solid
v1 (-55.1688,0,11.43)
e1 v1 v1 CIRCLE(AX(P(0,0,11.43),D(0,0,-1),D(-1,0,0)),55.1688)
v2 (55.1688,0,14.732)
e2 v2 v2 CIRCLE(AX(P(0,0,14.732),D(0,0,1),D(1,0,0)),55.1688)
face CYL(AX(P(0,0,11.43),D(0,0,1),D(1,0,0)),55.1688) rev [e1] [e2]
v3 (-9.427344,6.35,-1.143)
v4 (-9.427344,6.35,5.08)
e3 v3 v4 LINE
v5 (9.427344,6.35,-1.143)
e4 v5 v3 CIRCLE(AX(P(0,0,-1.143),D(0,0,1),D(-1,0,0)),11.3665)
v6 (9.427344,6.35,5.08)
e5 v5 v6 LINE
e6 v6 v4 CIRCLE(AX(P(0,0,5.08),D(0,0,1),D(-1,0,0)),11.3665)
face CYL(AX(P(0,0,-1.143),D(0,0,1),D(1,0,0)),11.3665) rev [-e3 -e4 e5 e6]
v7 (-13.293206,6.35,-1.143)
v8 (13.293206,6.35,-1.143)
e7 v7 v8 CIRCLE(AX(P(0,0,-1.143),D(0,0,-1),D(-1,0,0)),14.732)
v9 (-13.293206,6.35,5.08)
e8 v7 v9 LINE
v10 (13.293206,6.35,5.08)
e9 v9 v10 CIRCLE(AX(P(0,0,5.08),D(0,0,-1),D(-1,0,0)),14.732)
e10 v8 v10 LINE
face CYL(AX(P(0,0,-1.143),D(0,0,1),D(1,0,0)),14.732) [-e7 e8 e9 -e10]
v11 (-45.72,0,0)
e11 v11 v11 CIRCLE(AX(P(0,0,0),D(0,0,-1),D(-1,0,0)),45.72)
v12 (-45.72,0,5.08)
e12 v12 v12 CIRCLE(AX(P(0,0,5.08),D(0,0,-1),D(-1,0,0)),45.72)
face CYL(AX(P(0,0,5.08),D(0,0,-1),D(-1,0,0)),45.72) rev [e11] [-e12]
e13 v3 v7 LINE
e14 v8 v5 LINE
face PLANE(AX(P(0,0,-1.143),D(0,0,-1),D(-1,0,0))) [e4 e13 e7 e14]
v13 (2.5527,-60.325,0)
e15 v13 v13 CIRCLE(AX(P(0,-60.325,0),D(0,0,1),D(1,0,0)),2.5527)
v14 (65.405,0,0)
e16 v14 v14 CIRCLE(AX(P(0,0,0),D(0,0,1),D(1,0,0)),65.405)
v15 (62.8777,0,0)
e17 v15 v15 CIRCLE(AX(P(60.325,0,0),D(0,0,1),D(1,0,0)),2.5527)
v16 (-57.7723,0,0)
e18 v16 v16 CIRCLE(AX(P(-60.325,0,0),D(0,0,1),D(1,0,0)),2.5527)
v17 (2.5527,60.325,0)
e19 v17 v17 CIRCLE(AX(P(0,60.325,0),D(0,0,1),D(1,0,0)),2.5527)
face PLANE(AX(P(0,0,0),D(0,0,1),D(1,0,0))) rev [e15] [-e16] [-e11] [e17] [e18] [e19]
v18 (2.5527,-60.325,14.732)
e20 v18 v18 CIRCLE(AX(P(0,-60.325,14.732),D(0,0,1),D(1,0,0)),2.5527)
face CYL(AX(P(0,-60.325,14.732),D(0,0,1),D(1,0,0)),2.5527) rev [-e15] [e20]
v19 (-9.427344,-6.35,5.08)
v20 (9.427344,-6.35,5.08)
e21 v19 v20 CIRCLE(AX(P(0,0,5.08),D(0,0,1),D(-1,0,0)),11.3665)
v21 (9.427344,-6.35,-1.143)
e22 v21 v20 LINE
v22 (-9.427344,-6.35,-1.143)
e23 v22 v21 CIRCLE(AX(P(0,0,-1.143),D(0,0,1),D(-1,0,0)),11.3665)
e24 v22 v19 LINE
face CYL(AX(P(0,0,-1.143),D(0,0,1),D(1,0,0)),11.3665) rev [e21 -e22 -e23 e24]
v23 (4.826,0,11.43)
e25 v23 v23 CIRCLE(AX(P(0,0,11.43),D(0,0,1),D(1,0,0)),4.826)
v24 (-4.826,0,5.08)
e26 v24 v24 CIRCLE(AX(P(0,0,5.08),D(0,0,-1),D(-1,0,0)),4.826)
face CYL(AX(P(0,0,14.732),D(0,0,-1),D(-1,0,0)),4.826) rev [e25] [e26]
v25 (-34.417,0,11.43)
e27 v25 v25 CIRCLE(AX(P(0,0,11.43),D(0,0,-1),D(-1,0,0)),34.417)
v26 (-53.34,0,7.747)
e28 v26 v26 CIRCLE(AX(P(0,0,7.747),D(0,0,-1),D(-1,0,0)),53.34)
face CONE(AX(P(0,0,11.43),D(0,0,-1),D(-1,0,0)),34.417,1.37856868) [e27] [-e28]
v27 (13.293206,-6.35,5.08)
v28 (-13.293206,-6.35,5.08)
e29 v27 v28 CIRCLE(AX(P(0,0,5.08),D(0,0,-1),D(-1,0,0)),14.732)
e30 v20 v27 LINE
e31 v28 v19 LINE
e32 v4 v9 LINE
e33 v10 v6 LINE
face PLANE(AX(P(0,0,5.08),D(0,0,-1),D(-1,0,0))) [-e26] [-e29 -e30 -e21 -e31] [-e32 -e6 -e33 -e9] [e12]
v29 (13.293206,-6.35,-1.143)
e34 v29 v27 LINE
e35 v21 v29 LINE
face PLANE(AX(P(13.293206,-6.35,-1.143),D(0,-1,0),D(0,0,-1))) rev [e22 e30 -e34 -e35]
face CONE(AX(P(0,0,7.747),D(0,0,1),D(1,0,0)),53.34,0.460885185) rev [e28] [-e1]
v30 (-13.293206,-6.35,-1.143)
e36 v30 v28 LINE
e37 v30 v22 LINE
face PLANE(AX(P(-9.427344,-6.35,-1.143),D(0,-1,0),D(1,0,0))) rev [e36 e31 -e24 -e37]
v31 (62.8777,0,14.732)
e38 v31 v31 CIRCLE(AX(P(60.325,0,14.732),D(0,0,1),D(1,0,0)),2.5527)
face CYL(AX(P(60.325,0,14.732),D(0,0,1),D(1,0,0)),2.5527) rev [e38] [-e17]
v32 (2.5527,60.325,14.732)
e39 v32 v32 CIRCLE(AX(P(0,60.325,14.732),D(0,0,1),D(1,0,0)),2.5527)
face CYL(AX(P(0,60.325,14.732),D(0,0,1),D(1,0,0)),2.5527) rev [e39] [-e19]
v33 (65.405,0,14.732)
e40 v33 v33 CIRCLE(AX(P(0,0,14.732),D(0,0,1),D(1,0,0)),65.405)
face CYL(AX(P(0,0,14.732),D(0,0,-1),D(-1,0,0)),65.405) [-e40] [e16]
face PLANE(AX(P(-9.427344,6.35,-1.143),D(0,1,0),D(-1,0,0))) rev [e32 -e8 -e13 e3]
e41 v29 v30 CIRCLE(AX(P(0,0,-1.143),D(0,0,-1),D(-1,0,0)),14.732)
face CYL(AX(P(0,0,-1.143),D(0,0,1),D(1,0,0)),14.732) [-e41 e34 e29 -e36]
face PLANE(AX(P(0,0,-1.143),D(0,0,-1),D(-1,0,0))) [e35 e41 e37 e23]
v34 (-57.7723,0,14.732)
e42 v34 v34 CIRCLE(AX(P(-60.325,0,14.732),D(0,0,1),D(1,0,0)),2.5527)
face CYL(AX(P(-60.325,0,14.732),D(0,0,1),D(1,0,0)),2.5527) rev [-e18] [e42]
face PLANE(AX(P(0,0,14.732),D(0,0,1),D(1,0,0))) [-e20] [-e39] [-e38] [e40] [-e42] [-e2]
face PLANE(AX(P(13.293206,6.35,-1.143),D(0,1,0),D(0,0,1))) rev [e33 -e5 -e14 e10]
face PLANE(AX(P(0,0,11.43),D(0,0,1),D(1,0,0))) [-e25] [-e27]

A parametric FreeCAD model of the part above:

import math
import FreeCAD as App
import Part
import Sketcher

V = App.Vector
Q = App.Units.Quantity

doc = App.newDocument("Part")
body = doc.addObject("PartDesign::Body", "Body")

sketch1 = doc.addObject("Sketcher::SketchObject", "Sketch")
body.addObject(sketch1)
sketch1.AttachmentSupport = (doc.XY_Plane, [""])
sketch1.MapMode = "FlatFace"
sketch1.addGeometry(Part.Circle(V(0, 0, 0), V(0, 0, 1), 65), False)
sketch1.addConstraint([
    Sketcher.Constraint("Coincident", 0, 3, -1, 1),
    Sketcher.Constraint("Diameter", 0, Q("5.15 in")),
])
pad1 = doc.addObject("PartDesign::Pad", "Pad")
body.addObject(pad1)
pad1.Profile = sketch1
pad1.Length = Q("0.58 in")

sketch2 = doc.addObject("Sketcher::SketchObject", "Sketch001")
body.addObject(sketch2)
sketch2.AttachmentSupport = (doc.XY_Plane, [""])
sketch2.MapMode = "FlatFace"
sketch2.AttachmentOffset = App.Placement(V(0, 0, 0.58 * 25.4), App.Rotation())
sketch2.addGeometry(Part.Circle(V(0, 0, 0), V(0, 0, 1), 55), False)
sketch2.addConstraint([
    Sketcher.Constraint("Coincident", 0, 3, -1, 1),
    Sketcher.Constraint("Diameter", 0, Q("4.344 in")),
])
pocket1 = doc.addObject("PartDesign::Pocket", "Pocket")
body.addObject(pocket1)
pocket1.Profile = sketch2
pocket1.Length = Q("0.13 in")

sketch3 = doc.addObject("Sketcher::SketchObject", "Sketch002")
body.addObject(sketch3)
sketch3.AttachmentSupport = (doc.YZ_Plane, [""])
sketch3.MapMode = "FlatFace"
sketch3.addGeometry([
    Part.LineSegment(V(34.4, 11.4, 0), V(53.3, 7.7, 0)),
    Part.LineSegment(V(53.3, 7.7, 0), V(55.2, 11.4, 0)),
    Part.LineSegment(V(55.2, 11.4, 0), V(34.4, 11.4, 0)),
], False)
sketch3.addConstraint([
    Sketcher.Constraint("Coincident", 0, 2, 1, 1),
    Sketcher.Constraint("Coincident", 1, 2, 2, 1),
    Sketcher.Constraint("Coincident", 2, 2, 0, 1),
    Sketcher.Constraint("Horizontal", 2),
    Sketcher.Constraint("DistanceX", -1, 1, 0, 2, Q("2.1 in")),
    Sketcher.Constraint("DistanceX", 2, 2, 2, 1, Q("0.817 in")),
    Sketcher.Constraint("DistanceY", -1, 1, 1, 2, Q("0.45 in")),
    Sketcher.Constraint("DistanceY", -1, 1, 0, 2, Q("0.305 in")),
    Sketcher.Constraint("DistanceX", -1, 1, 1, 2, Q("2.172 in")),
])
groove = doc.addObject("PartDesign::Groove", "Groove")
body.addObject(groove)
groove.Profile = sketch3
groove.ReferenceAxis = (sketch3, ["V_Axis"])
groove.Angle = 360

sketch4 = doc.addObject("Sketcher::SketchObject", "Sketch003")
body.addObject(sketch4)
sketch4.AttachmentSupport = (doc.XY_Plane, [""])
sketch4.MapMode = "FlatFace"
sketch4.AttachmentOffset = App.Placement(V(0, 0, 0.58 * 25.4), App.Rotation())
sketch4.addGeometry([
    Part.Circle(V(0, 60.3, 0), V(0, 0, 1), 2.6),
    Part.Circle(V(60.3, 0, 0), V(0, 0, 1), 2.6),
    Part.Circle(V(0, -60.3, 0), V(0, 0, 1), 2.6),
    Part.Circle(V(-60.3, 0, 0), V(0, 0, 1), 2.6),
], False)
sketch4.addConstraint([
    Sketcher.Constraint("Equal", 0, 1),
    Sketcher.Constraint("Equal", 1, 2),
    Sketcher.Constraint("Equal", 2, 3),
    Sketcher.Constraint("Symmetric", 0, 3, 2, 3, -1, 1),
    Sketcher.Constraint("Symmetric", 1, 3, 3, 3, -1, 1),
    Sketcher.Constraint("PointOnObject", 0, 3, -2),
    Sketcher.Constraint("PointOnObject", 1, 3, -1),
    Sketcher.Constraint("Diameter", 0, Q("0.201 in")),
    Sketcher.Constraint("DistanceY", 2, 3, 0, 3, Q("4.75 in")),
    Sketcher.Constraint("DistanceX", 3, 3, 1, 3, Q("4.75 in")),
])
doc.recompute()
hole = doc.addObject("PartDesign::Hole", "Hole")
body.addObject(hole)
hole.Profile = sketch4
hole.ThreadType = "None"
hole.Diameter = Q("0.201 in")
hole.DepthType = "ThroughAll"

sketch5 = doc.addObject("Sketcher::SketchObject", "Sketch004")
body.addObject(sketch5)
sketch5.AttachmentSupport = (doc.XY_Plane, [""])
sketch5.MapMode = "FlatFace"
sketch5.addGeometry(Part.Circle(V(0, 0, 0), V(0, 0, 1), 46), False)
sketch5.addConstraint([
    Sketcher.Constraint("Coincident", 0, 3, -1, 1),
    Sketcher.Constraint("Diameter", 0, Q("3.6 in")),
])
pocket2 = doc.addObject("PartDesign::Pocket", "Pocket001")
body.addObject(pocket2)
pocket2.Profile = sketch5
pocket2.Length = Q("0.2 in")
pocket2.Reversed = True

sketch6 = doc.addObject("Sketcher::SketchObject", "Sketch005")
body.addObject(sketch6)
sketch6.AttachmentSupport = (doc.XY_Plane, [""])
sketch6.MapMode = "FlatFace"
sketch6.AttachmentOffset = App.Placement(V(0, 0, 0.2 * 25.4), App.Rotation())
sketch6.addGeometry(Part.Circle(V(0, 0, 0), V(0, 0, 1), 4.8), False)
sketch6.addConstraint([
    Sketcher.Constraint("Coincident", 0, 3, -1, 1),
    Sketcher.Constraint("Diameter", 0, Q("0.38 in")),
])
pocket3 = doc.addObject("PartDesign::Pocket", "Pocket002")
body.addObject(pocket3)
pocket3.Profile = sketch6
pocket3.Type = "ThroughAll"
pocket3.Reversed = True

sketch7 = doc.addObject("Sketcher::SketchObject", "Sketch006")
body.addObject(sketch7)
sketch7.AttachmentSupport = (doc.XY_Plane, [""])
sketch7.MapMode = "FlatFace"
sketch7.AttachmentOffset = App.Placement(V(0, 0, 0.2 * 25.4), App.Rotation())
sketch7.addGeometry([
    Part.LineSegment(V(9.4, -6.3, 0), V(13.3, -6.3, 0)),
    Part.ArcOfCircle(Part.Circle(V(0, 0, 0), V(0, 0, 1), 14.7), math.radians(-154), math.radians(-26)),
    Part.LineSegment(V(-13.3, -6.3, 0), V(-9.4, -6.3, 0)),
    Part.ArcOfCircle(Part.Circle(V(0, 0, 0), V(0, 0, 1), 11.4), math.radians(-146), math.radians(-34)),
    Part.LineSegment(V(13.3, 6.3, 0), V(9.4, 6.3, 0)),
    Part.ArcOfCircle(Part.Circle(V(0, 0, 0), V(0, 0, 1), 11.4), math.radians(34), math.radians(146)),
    Part.LineSegment(V(-9.4, 6.3, 0), V(-13.3, 6.3, 0)),
    Part.ArcOfCircle(Part.Circle(V(0, 0, 0), V(0, 0, 1), 14.7), math.radians(26), math.radians(154)),
], False)
sketch7.addConstraint([
    Sketcher.Constraint("Coincident", 0, 2, 1, 2),
    Sketcher.Constraint("Coincident", 1, 1, 2, 1),
    Sketcher.Constraint("Coincident", 2, 2, 3, 1),
    Sketcher.Constraint("Coincident", 3, 2, 0, 1),
    Sketcher.Constraint("Coincident", 4, 2, 5, 1),
    Sketcher.Constraint("Coincident", 5, 2, 6, 1),
    Sketcher.Constraint("Coincident", 6, 2, 7, 2),
    Sketcher.Constraint("Coincident", 7, 1, 4, 1),
    Sketcher.Constraint("Horizontal", 0),
    Sketcher.Constraint("Horizontal", 2),
    Sketcher.Constraint("Horizontal", 4),
    Sketcher.Constraint("Horizontal", 6),
    Sketcher.Constraint("Coincident", 1, 3, -1, 1),
    Sketcher.Constraint("Coincident", 3, 3, -1, 1),
    Sketcher.Constraint("Coincident", 5, 3, -1, 1),
    Sketcher.Constraint("Coincident", 7, 3, -1, 1),
    Sketcher.Constraint("Equal", 3, 5),
    Sketcher.Constraint("Equal", 1, 7),
    Sketcher.Constraint("Horizontal", 0, 2, 1, 1),
    Sketcher.Constraint("Horizontal", 4, 2, 5, 2),
    Sketcher.Constraint("Vertical", 3, 2, 4, 2),
    Sketcher.Constraint("Radius", 1, Q("0.58 in")),
    Sketcher.Constraint("Radius", 3, Q("0.4475 in")),
    Sketcher.Constraint("DistanceY", 3, 2, 4, 2, Q("0.5 in")),
])
pad2 = doc.addObject("PartDesign::Pad", "Pad001")
body.addObject(pad2)
pad2.Profile = sketch7
pad2.Length = Q("0.245 in")
pad2.Reversed = True

doc.recompute()
